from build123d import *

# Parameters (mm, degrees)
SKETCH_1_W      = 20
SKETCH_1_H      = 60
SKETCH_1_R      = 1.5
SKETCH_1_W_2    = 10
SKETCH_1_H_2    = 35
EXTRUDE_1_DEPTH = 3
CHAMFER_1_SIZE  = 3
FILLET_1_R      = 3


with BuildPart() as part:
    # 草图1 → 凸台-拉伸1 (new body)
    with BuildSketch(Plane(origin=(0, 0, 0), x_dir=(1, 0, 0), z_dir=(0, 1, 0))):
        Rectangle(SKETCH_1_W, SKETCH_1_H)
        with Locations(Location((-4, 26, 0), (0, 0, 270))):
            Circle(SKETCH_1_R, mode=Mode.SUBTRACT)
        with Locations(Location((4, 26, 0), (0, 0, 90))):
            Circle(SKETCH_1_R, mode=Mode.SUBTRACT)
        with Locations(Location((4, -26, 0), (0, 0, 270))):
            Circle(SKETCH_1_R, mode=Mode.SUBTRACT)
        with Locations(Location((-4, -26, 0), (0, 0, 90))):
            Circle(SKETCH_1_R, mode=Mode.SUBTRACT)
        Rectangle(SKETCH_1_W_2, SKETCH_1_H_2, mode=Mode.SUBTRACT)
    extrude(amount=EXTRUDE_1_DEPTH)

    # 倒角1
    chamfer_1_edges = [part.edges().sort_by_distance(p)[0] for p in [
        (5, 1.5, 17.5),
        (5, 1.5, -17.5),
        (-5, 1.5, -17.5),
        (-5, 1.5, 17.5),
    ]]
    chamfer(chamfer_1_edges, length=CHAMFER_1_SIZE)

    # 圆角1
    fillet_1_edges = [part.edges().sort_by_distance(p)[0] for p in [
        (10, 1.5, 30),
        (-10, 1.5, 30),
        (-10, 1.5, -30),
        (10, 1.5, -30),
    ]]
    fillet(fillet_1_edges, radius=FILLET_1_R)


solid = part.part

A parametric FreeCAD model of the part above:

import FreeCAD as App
import Part
import Sketcher

V = App.Vector
Q = App.Units.Quantity


def edges_at(feature, points):
    """Names of the edges that pass closest to the given points."""
    edges = feature.Shape.Edges
    near = lambda p: min(range(len(edges)), key=lambda i: edges[i].distToShape(Part.Vertex(*p))[0])
    return sorted({f"Edge{near(p) + 1}" for p in points})

doc = App.newDocument("Part")
body = doc.addObject("PartDesign::Body", "Body")

# Sketch on XZ plane
sketch1 = doc.addObject("Sketcher::SketchObject", "Sketch")
body.addObject(sketch1)
sketch1.AttachmentSupport = (doc.XZ_Plane, [""])
sketch1.MapMode = "FlatFace"
sketch1.addGeometry([
    Part.LineSegment(V(-10, -30, 0), V(-10, 30, 0)),  # 0
    Part.LineSegment(V(-10, 30, 0), V(10, 30, 0)),  # 1
    Part.LineSegment(V(10, 30, 0), V(10, -30, 0)),  # 2
    Part.LineSegment(V(10, -30, 0), V(-10, -30, 0)),  # 3
    Part.Circle(V(-4, 26, 0), V(0, 0, 1), 1.5),  # 4
    Part.Circle(V(4, 26, 0), V(0, 0, 1), 1.5),  # 5
    Part.Circle(V(-4, -26, 0), V(0, 0, 1), 1.5),  # 6
    Part.LineSegment(V(5, 17.5, 0), V(-5, 17.5, 0)),  # 7
    Part.LineSegment(V(-5, 17.5, 0), V(-5, -17.5, 0)),  # 8
    Part.LineSegment(V(-5, -17.5, 0), V(5, -17.5, 0)),  # 9
    Part.LineSegment(V(5, -17.5, 0), V(5, 17.5, 0)),  # 10
    Part.Circle(V(4, -26, 0), V(0, 0, 1), 1.5),  # 11
], False)
sketch1.addConstraint([
    Sketcher.Constraint("Coincident", 0, 2, 1, 1),
    Sketcher.Constraint("Coincident", 1, 2, 2, 1),
    Sketcher.Constraint("Coincident", 2, 2, 3, 1),
    Sketcher.Constraint("Coincident", 3, 2, 0, 1),
    Sketcher.Constraint("Coincident", 7, 2, 8, 1),
    Sketcher.Constraint("Coincident", 8, 2, 9, 1),
    Sketcher.Constraint("Coincident", 9, 2, 10, 1),
    Sketcher.Constraint("Coincident", 10, 2, 7, 1),
    Sketcher.Constraint("Vertical", 0),
    Sketcher.Constraint("Horizontal", 1),
    Sketcher.Constraint("Vertical", 2),
    Sketcher.Constraint("Horizontal", 3),
    Sketcher.Constraint("Horizontal", 7),
    Sketcher.Constraint("Vertical", 8),
    Sketcher.Constraint("Horizontal", 9),
    Sketcher.Constraint("Vertical", 10),
    Sketcher.Constraint("Equal", 4, 5),
    Sketcher.Constraint("Equal", 5, 6),
    Sketcher.Constraint("Equal", 6, 11),
    Sketcher.Constraint("Symmetric", 5, 3, 6, 3, -1, 1),
    Sketcher.Constraint("Symmetric", 4, 3, 11, 3, -1, 1),
    Sketcher.Constraint("Symmetric", 0, 2, 2, 2, -1, 1),
    Sketcher.Constraint("Symmetric", 7, 2, 9, 2, -1, 1),
    Sketcher.Constraint("Symmetric", 4, 3, 5, 3, -2),
    Sketcher.Constraint("Diameter", 4, Q("3 mm")),
    Sketcher.Constraint("DistanceX", 1, 1, 1, 2, Q("20 mm")),
    Sketcher.Constraint("DistanceX", 7, 2, 7, 1, Q("10 mm")),
    Sketcher.Constraint("DistanceY", 0, 1, 0, 2, Q("60 mm")),
    Sketcher.Constraint("DistanceY", 8, 2, 8, 1, Q("35 mm")),
    Sketcher.Constraint("DistanceX", 4, 3, -1, 1, Q("4 mm")),
    Sketcher.Constraint("DistanceY", -1, 1, 4, 3, Q("26 mm")),
])
pad1 = doc.addObject("PartDesign::Pad", "Pad")
body.addObject(pad1)
pad1.Profile = sketch1
pad1.Length = 3
pad1.Reversed = True
doc.recompute()

chamfer = doc.addObject("PartDesign::Chamfer", "Chamfer")
body.addObject(chamfer)
chamfer.Base = (pad1, edges_at(pad1, [
    (5, 1.5, 17.5),
    (5, 1.5, -17.5),
    (-5, 1.5, -17.5),
    (-5, 1.5, 17.5),
]))
chamfer.Size = 3
doc.recompute()

fillet = doc.addObject("PartDesign::Fillet", "Fillet")
body.addObject(fillet)
fillet.Base = (chamfer, edges_at(chamfer, [
    (10, 1.5, 30),
    (-10, 1.5, 30),
    (-10, 1.5, -30),
    (10, 1.5, -30),
]))
fillet.Radius = 3

doc.recompute()
